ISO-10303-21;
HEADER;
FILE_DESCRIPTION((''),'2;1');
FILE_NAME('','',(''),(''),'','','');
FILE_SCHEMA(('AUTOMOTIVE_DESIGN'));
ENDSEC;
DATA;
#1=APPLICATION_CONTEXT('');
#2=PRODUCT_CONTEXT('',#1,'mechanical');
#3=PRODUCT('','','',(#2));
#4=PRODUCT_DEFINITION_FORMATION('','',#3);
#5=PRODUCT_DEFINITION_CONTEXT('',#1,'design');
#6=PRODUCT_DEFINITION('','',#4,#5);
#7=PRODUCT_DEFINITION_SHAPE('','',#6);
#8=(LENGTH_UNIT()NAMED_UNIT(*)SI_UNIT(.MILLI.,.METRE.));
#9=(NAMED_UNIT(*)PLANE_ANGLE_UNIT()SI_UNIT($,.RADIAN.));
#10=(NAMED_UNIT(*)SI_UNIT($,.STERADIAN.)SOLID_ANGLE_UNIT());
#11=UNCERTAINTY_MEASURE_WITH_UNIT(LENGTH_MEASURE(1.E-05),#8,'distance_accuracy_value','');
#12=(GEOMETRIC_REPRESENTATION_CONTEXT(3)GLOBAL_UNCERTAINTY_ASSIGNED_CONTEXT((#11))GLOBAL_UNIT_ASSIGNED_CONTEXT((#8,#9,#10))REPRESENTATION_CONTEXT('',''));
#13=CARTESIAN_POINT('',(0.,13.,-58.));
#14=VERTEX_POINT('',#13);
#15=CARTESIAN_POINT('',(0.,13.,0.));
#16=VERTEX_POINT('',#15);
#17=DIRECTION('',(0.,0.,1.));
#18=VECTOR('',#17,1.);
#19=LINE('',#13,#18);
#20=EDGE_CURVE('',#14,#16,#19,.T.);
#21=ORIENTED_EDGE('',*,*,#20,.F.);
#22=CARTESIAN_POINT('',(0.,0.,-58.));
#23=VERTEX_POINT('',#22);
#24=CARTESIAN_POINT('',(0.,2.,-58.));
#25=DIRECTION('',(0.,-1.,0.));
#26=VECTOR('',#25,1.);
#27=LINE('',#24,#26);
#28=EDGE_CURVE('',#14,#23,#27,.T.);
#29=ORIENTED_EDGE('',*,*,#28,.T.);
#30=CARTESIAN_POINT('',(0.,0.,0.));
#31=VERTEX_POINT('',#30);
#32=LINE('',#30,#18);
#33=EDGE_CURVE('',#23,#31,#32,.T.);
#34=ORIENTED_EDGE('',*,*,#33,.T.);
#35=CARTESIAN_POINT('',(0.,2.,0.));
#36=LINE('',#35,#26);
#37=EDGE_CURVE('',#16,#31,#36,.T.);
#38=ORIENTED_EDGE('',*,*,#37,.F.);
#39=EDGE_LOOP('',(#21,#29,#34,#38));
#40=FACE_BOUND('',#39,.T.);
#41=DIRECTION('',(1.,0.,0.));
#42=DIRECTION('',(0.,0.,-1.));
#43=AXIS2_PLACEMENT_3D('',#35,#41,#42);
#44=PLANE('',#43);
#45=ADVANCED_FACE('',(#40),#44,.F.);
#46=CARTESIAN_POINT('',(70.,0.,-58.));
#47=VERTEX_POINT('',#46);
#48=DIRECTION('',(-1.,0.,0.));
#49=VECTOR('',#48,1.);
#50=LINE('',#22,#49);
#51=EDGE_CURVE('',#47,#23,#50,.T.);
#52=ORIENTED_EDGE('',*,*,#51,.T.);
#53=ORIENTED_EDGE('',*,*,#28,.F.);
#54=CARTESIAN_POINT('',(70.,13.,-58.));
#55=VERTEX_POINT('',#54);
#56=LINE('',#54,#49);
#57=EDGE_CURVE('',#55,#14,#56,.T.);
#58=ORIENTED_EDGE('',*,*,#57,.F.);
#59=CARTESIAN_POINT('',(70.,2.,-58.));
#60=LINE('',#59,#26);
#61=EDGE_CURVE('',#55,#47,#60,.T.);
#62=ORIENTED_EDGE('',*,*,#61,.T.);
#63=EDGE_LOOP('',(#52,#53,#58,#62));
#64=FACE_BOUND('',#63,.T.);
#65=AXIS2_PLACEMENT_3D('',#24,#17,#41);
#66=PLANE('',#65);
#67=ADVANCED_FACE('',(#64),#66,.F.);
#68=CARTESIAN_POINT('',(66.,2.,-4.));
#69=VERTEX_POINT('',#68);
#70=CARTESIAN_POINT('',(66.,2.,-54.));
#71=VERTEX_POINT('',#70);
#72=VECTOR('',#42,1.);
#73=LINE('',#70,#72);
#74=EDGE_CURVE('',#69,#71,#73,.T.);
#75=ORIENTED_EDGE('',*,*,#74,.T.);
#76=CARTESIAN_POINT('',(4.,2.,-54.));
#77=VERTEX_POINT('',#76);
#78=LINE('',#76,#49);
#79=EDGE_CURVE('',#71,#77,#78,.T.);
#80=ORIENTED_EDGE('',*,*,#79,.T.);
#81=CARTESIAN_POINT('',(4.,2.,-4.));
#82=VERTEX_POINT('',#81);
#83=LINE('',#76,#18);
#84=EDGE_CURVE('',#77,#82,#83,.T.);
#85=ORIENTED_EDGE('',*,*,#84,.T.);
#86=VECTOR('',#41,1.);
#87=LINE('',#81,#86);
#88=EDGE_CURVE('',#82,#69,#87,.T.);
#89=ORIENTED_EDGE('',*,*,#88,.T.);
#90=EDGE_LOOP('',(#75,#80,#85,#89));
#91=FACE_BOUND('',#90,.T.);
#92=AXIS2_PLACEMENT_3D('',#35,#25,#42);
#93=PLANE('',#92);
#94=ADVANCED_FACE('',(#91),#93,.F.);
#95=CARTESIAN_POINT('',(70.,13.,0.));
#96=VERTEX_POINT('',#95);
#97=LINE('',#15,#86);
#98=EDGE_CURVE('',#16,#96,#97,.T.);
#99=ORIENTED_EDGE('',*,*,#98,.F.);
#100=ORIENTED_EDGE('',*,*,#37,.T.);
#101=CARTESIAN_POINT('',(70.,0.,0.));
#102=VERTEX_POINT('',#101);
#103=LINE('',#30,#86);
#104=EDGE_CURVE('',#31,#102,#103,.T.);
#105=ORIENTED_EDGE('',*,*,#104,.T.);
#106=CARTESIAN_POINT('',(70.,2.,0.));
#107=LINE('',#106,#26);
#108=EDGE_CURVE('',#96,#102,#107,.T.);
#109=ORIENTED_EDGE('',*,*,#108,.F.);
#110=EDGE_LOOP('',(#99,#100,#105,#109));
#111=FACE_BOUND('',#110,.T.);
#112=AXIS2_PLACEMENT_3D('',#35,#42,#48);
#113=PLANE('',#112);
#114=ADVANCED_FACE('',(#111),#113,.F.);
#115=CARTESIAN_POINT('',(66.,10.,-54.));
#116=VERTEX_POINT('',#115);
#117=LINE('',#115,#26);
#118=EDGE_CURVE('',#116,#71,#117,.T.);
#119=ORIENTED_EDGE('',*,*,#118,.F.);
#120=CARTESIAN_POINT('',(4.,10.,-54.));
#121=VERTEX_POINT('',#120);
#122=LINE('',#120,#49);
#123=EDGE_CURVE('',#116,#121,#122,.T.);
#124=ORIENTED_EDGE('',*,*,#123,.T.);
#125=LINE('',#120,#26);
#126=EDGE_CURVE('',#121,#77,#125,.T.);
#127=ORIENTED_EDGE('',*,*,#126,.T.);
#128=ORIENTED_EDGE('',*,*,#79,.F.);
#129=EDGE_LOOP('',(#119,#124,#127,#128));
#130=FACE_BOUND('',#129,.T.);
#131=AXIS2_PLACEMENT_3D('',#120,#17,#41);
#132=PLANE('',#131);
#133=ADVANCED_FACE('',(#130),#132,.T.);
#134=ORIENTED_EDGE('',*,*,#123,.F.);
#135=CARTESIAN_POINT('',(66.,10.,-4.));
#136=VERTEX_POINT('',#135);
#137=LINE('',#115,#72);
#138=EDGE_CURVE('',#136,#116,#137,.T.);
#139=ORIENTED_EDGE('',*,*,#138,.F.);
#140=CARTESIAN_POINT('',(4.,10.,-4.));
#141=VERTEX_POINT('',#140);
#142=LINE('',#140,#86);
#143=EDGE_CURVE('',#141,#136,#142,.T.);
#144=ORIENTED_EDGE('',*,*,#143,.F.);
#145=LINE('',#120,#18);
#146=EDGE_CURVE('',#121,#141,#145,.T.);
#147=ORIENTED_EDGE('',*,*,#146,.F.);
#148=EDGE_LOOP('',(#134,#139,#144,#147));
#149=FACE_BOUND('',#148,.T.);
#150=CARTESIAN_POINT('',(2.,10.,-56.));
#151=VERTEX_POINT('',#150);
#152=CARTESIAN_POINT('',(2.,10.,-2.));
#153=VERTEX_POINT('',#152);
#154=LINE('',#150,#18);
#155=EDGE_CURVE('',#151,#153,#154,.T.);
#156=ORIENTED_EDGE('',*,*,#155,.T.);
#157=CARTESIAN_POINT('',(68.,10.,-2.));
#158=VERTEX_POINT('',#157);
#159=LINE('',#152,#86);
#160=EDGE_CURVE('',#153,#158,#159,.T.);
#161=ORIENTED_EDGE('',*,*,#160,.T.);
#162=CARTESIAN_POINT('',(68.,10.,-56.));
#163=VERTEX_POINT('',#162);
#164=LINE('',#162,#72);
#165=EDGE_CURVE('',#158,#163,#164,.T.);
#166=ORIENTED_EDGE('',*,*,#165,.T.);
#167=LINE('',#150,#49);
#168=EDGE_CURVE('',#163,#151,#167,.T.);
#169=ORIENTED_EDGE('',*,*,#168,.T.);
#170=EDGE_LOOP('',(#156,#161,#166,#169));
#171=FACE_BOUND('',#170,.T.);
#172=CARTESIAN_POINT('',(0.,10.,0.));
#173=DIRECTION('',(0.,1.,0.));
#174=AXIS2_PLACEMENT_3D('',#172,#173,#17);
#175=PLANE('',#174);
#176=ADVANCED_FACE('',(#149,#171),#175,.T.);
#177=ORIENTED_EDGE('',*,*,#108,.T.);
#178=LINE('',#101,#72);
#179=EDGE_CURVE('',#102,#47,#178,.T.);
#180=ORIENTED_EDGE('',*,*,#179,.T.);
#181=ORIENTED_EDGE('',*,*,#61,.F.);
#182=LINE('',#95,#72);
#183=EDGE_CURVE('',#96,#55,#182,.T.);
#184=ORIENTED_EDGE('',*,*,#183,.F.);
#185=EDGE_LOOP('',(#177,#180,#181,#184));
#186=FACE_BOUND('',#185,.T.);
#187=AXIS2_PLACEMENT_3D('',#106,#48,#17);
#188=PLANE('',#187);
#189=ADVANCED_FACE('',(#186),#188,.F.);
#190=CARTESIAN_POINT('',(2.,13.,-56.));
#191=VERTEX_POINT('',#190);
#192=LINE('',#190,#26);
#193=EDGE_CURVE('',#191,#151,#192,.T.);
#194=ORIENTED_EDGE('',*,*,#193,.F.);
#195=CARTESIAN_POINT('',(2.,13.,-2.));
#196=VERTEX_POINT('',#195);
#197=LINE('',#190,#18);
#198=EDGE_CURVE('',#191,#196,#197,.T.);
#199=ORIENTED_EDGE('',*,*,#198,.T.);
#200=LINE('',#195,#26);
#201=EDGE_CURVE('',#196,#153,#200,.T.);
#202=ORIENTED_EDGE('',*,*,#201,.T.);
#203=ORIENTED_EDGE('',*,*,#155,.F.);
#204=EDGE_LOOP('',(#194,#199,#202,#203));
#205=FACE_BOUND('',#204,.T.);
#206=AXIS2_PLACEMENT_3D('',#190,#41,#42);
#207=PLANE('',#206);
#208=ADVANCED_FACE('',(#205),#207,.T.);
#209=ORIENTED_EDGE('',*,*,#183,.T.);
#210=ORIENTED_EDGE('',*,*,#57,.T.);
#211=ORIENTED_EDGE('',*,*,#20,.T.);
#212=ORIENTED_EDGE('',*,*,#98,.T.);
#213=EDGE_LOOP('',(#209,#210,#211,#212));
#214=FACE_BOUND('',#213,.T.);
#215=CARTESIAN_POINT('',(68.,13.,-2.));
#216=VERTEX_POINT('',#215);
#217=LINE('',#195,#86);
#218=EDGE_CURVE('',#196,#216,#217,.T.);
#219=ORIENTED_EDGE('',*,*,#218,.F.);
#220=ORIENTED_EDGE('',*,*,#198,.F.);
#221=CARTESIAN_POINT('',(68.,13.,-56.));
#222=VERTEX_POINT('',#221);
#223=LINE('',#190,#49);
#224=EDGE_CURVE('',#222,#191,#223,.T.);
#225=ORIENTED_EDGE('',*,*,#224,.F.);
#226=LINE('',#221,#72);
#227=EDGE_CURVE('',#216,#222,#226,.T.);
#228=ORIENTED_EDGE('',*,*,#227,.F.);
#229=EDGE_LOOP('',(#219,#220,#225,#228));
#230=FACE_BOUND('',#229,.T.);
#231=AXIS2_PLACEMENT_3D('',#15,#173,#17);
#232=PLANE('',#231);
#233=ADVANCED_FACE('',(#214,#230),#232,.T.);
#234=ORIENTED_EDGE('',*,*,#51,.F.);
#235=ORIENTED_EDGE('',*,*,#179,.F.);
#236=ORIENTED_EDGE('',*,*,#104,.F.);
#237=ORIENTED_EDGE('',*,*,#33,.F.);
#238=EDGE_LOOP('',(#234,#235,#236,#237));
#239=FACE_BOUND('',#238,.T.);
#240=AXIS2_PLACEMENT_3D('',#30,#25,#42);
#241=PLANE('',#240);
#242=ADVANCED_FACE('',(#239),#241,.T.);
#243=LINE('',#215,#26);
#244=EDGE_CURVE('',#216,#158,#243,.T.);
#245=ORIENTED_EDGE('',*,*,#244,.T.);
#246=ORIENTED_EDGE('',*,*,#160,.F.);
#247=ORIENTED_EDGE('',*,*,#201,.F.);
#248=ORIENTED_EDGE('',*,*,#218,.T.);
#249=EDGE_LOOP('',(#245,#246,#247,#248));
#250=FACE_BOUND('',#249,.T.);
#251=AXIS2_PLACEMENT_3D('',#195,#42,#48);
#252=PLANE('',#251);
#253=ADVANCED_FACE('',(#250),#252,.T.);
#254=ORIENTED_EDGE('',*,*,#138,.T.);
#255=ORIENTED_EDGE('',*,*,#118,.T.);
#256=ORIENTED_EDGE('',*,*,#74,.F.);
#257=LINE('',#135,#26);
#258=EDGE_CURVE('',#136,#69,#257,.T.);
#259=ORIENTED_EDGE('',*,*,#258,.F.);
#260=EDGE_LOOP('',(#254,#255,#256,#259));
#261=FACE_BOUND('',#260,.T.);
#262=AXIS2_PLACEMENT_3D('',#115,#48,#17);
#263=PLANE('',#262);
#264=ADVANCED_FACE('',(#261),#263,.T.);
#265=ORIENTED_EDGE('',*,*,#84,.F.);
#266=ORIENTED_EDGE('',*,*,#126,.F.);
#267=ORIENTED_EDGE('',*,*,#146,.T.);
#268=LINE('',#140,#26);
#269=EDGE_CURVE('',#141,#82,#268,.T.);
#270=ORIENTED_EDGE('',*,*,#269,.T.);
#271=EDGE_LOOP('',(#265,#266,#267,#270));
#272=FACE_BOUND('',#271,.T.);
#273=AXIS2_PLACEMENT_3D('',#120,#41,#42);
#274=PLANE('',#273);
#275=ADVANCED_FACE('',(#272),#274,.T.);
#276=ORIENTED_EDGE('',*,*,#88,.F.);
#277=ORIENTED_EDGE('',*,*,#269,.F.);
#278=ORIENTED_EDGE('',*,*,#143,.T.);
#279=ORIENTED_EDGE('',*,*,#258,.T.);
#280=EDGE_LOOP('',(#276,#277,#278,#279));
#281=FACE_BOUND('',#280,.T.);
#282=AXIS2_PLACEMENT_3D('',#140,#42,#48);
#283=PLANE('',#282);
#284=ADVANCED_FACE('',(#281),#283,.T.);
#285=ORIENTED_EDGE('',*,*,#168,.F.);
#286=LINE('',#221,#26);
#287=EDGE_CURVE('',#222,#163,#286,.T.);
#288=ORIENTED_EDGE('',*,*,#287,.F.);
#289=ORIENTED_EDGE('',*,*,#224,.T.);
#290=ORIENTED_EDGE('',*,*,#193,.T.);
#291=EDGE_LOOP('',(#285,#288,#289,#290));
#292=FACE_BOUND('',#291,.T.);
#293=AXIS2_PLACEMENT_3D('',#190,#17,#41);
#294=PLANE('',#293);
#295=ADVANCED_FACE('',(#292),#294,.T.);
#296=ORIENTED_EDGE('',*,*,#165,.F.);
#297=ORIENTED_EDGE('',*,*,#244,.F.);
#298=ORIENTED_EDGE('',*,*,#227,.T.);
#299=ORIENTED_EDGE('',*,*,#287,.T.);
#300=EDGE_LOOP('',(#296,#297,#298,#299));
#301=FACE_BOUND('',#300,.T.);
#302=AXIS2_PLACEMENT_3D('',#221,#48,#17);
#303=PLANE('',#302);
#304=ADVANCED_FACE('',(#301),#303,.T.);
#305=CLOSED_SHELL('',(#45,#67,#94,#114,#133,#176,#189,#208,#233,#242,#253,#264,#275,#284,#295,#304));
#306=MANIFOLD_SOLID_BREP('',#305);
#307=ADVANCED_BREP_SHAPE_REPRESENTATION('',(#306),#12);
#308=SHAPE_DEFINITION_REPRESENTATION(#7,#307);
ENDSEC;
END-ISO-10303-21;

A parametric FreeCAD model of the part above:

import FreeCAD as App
import Part
import Sketcher

V = App.Vector


def add_polygon(sketch, points):
    """Adds a closed chain of lines whose ends are joined by coincident constraints."""
    first, n = sketch.GeometryCount, len(points)
    for a, b in zip(points, points[1:] + points[:1]):
        sketch.addGeometry(Part.LineSegment(App.Vector(*a, 0), App.Vector(*b, 0)), False)
    for i in range(n):
        sketch.addConstraint(Sketcher.Constraint("Coincident", first + i, 2, first + (i + 1) % n, 1))

doc = App.newDocument("Part")
body = doc.addObject("PartDesign::Body", "Body")

sketch1 = doc.addObject("Sketcher::SketchObject", "Sketch")
body.addObject(sketch1)
sketch1.AttachmentSupport = (doc.XZ_Plane, [""])
sketch1.MapMode = "FlatFace"
add_polygon(sketch1, [(0, -58), (0, 0), (70, 0), (70, -58)])
sketch1.addConstraint([
    Sketcher.Constraint("Vertical", 0),
    Sketcher.Constraint("Horizontal", 1),
    Sketcher.Constraint("Vertical", 2),
    Sketcher.Constraint("Horizontal", 3),
    Sketcher.Constraint("Coincident", 0, 2, -1, 1),
    Sketcher.Constraint("DistanceX", 1, 1, 1, 2, 70.0),
    Sketcher.Constraint("DistanceY", 0, 1, 0, 2, 58.0),
])
pad1 = doc.addObject("PartDesign::Pad", "Pad")
body.addObject(pad1)
pad1.Profile = sketch1
pad1.Length = 2
pad1.Reversed = True

sketch2 = doc.addObject("Sketcher::SketchObject", "Sketch001")
body.addObject(sketch2)
sketch2.AttachmentSupport = (doc.XZ_Plane, [""])
sketch2.MapMode = "FlatFace"
sketch2.AttachmentOffset = App.Placement(V(0, 0, -2), App.Rotation())
add_polygon(sketch2, [(0, -58), (0, 0), (70, 0), (70, -58)])
add_polygon(sketch2, [(66, -4), (4, -4), (4, -54), (66, -54)])
sketch2.addConstraint([
    Sketcher.Constraint("Vertical", 0),
    Sketcher.Constraint("Horizontal", 1),
    Sketcher.Constraint("Vertical", 2),
    Sketcher.Constraint("Horizontal", 3),
    Sketcher.Constraint("Horizontal", 4),
    Sketcher.Constraint("Vertical", 5),
    Sketcher.Constraint("Horizontal", 6),
    Sketcher.Constraint("Vertical", 7),
    Sketcher.Constraint("Coincident", 0, 2, -1, 1),
    Sketcher.Constraint("DistanceX", 1, 1, 1, 2, 70.0),
    Sketcher.Constraint("DistanceX", 4, 2, 4, 1, 62.0),
    Sketcher.Constraint("DistanceY", 0, 1, 0, 2, 58.0),
    Sketcher.Constraint("DistanceY", 5, 2, 5, 1, 50.0),
    Sketcher.Constraint("DistanceX", -1, 1, 4, 2, 4.0),
    Sketcher.Constraint("DistanceY", 4, 2, -1, 1, 4.0),
])
pad2 = doc.addObject("PartDesign::Pad", "Pad001")
body.addObject(pad2)
pad2.Profile = sketch2
pad2.Length = 8
pad2.Reversed = True

sketch3 = doc.addObject("Sketcher::SketchObject", "Sketch002")
body.addObject(sketch3)
sketch3.AttachmentSupport = (doc.XZ_Plane, [""])
sketch3.MapMode = "FlatFace"
sketch3.AttachmentOffset = App.Placement(V(0, 0, -10), App.Rotation())
add_polygon(sketch3, [(0, -58), (0, 0), (70, 0), (70, -58)])
add_polygon(sketch3, [(68, -2), (2, -2), (2, -56), (68, -56)])
sketch3.addConstraint([
    Sketcher.Constraint("Vertical", 0),
    Sketcher.Constraint("Horizontal", 1),
    Sketcher.Constraint("Vertical", 2),
    Sketcher.Constraint("Horizontal", 3),
    Sketcher.Constraint("Horizontal", 4),
    Sketcher.Constraint("Vertical", 5),
    Sketcher.Constraint("Horizontal", 6),
    Sketcher.Constraint("Vertical", 7),
    Sketcher.Constraint("Coincident", 0, 2, -1, 1),
    Sketcher.Constraint("DistanceX", 1, 1, 1, 2, 70.0),
    Sketcher.Constraint("DistanceX", 4, 2, 4, 1, 66.0),
    Sketcher.Constraint("DistanceY", 0, 1, 0, 2, 58.0),
    Sketcher.Constraint("DistanceY", 5, 2, 5, 1, 54.0),
    Sketcher.Constraint("DistanceX", -1, 1, 4, 2, 2.0),
    Sketcher.Constraint("DistanceY", 4, 2, -1, 1, 2.0),
])
pad3 = doc.addObject("PartDesign::Pad", "Pad002")
body.addObject(pad3)
pad3.Profile = sketch3
pad3.Length = 3
pad3.Reversed = True

doc.recompute()
